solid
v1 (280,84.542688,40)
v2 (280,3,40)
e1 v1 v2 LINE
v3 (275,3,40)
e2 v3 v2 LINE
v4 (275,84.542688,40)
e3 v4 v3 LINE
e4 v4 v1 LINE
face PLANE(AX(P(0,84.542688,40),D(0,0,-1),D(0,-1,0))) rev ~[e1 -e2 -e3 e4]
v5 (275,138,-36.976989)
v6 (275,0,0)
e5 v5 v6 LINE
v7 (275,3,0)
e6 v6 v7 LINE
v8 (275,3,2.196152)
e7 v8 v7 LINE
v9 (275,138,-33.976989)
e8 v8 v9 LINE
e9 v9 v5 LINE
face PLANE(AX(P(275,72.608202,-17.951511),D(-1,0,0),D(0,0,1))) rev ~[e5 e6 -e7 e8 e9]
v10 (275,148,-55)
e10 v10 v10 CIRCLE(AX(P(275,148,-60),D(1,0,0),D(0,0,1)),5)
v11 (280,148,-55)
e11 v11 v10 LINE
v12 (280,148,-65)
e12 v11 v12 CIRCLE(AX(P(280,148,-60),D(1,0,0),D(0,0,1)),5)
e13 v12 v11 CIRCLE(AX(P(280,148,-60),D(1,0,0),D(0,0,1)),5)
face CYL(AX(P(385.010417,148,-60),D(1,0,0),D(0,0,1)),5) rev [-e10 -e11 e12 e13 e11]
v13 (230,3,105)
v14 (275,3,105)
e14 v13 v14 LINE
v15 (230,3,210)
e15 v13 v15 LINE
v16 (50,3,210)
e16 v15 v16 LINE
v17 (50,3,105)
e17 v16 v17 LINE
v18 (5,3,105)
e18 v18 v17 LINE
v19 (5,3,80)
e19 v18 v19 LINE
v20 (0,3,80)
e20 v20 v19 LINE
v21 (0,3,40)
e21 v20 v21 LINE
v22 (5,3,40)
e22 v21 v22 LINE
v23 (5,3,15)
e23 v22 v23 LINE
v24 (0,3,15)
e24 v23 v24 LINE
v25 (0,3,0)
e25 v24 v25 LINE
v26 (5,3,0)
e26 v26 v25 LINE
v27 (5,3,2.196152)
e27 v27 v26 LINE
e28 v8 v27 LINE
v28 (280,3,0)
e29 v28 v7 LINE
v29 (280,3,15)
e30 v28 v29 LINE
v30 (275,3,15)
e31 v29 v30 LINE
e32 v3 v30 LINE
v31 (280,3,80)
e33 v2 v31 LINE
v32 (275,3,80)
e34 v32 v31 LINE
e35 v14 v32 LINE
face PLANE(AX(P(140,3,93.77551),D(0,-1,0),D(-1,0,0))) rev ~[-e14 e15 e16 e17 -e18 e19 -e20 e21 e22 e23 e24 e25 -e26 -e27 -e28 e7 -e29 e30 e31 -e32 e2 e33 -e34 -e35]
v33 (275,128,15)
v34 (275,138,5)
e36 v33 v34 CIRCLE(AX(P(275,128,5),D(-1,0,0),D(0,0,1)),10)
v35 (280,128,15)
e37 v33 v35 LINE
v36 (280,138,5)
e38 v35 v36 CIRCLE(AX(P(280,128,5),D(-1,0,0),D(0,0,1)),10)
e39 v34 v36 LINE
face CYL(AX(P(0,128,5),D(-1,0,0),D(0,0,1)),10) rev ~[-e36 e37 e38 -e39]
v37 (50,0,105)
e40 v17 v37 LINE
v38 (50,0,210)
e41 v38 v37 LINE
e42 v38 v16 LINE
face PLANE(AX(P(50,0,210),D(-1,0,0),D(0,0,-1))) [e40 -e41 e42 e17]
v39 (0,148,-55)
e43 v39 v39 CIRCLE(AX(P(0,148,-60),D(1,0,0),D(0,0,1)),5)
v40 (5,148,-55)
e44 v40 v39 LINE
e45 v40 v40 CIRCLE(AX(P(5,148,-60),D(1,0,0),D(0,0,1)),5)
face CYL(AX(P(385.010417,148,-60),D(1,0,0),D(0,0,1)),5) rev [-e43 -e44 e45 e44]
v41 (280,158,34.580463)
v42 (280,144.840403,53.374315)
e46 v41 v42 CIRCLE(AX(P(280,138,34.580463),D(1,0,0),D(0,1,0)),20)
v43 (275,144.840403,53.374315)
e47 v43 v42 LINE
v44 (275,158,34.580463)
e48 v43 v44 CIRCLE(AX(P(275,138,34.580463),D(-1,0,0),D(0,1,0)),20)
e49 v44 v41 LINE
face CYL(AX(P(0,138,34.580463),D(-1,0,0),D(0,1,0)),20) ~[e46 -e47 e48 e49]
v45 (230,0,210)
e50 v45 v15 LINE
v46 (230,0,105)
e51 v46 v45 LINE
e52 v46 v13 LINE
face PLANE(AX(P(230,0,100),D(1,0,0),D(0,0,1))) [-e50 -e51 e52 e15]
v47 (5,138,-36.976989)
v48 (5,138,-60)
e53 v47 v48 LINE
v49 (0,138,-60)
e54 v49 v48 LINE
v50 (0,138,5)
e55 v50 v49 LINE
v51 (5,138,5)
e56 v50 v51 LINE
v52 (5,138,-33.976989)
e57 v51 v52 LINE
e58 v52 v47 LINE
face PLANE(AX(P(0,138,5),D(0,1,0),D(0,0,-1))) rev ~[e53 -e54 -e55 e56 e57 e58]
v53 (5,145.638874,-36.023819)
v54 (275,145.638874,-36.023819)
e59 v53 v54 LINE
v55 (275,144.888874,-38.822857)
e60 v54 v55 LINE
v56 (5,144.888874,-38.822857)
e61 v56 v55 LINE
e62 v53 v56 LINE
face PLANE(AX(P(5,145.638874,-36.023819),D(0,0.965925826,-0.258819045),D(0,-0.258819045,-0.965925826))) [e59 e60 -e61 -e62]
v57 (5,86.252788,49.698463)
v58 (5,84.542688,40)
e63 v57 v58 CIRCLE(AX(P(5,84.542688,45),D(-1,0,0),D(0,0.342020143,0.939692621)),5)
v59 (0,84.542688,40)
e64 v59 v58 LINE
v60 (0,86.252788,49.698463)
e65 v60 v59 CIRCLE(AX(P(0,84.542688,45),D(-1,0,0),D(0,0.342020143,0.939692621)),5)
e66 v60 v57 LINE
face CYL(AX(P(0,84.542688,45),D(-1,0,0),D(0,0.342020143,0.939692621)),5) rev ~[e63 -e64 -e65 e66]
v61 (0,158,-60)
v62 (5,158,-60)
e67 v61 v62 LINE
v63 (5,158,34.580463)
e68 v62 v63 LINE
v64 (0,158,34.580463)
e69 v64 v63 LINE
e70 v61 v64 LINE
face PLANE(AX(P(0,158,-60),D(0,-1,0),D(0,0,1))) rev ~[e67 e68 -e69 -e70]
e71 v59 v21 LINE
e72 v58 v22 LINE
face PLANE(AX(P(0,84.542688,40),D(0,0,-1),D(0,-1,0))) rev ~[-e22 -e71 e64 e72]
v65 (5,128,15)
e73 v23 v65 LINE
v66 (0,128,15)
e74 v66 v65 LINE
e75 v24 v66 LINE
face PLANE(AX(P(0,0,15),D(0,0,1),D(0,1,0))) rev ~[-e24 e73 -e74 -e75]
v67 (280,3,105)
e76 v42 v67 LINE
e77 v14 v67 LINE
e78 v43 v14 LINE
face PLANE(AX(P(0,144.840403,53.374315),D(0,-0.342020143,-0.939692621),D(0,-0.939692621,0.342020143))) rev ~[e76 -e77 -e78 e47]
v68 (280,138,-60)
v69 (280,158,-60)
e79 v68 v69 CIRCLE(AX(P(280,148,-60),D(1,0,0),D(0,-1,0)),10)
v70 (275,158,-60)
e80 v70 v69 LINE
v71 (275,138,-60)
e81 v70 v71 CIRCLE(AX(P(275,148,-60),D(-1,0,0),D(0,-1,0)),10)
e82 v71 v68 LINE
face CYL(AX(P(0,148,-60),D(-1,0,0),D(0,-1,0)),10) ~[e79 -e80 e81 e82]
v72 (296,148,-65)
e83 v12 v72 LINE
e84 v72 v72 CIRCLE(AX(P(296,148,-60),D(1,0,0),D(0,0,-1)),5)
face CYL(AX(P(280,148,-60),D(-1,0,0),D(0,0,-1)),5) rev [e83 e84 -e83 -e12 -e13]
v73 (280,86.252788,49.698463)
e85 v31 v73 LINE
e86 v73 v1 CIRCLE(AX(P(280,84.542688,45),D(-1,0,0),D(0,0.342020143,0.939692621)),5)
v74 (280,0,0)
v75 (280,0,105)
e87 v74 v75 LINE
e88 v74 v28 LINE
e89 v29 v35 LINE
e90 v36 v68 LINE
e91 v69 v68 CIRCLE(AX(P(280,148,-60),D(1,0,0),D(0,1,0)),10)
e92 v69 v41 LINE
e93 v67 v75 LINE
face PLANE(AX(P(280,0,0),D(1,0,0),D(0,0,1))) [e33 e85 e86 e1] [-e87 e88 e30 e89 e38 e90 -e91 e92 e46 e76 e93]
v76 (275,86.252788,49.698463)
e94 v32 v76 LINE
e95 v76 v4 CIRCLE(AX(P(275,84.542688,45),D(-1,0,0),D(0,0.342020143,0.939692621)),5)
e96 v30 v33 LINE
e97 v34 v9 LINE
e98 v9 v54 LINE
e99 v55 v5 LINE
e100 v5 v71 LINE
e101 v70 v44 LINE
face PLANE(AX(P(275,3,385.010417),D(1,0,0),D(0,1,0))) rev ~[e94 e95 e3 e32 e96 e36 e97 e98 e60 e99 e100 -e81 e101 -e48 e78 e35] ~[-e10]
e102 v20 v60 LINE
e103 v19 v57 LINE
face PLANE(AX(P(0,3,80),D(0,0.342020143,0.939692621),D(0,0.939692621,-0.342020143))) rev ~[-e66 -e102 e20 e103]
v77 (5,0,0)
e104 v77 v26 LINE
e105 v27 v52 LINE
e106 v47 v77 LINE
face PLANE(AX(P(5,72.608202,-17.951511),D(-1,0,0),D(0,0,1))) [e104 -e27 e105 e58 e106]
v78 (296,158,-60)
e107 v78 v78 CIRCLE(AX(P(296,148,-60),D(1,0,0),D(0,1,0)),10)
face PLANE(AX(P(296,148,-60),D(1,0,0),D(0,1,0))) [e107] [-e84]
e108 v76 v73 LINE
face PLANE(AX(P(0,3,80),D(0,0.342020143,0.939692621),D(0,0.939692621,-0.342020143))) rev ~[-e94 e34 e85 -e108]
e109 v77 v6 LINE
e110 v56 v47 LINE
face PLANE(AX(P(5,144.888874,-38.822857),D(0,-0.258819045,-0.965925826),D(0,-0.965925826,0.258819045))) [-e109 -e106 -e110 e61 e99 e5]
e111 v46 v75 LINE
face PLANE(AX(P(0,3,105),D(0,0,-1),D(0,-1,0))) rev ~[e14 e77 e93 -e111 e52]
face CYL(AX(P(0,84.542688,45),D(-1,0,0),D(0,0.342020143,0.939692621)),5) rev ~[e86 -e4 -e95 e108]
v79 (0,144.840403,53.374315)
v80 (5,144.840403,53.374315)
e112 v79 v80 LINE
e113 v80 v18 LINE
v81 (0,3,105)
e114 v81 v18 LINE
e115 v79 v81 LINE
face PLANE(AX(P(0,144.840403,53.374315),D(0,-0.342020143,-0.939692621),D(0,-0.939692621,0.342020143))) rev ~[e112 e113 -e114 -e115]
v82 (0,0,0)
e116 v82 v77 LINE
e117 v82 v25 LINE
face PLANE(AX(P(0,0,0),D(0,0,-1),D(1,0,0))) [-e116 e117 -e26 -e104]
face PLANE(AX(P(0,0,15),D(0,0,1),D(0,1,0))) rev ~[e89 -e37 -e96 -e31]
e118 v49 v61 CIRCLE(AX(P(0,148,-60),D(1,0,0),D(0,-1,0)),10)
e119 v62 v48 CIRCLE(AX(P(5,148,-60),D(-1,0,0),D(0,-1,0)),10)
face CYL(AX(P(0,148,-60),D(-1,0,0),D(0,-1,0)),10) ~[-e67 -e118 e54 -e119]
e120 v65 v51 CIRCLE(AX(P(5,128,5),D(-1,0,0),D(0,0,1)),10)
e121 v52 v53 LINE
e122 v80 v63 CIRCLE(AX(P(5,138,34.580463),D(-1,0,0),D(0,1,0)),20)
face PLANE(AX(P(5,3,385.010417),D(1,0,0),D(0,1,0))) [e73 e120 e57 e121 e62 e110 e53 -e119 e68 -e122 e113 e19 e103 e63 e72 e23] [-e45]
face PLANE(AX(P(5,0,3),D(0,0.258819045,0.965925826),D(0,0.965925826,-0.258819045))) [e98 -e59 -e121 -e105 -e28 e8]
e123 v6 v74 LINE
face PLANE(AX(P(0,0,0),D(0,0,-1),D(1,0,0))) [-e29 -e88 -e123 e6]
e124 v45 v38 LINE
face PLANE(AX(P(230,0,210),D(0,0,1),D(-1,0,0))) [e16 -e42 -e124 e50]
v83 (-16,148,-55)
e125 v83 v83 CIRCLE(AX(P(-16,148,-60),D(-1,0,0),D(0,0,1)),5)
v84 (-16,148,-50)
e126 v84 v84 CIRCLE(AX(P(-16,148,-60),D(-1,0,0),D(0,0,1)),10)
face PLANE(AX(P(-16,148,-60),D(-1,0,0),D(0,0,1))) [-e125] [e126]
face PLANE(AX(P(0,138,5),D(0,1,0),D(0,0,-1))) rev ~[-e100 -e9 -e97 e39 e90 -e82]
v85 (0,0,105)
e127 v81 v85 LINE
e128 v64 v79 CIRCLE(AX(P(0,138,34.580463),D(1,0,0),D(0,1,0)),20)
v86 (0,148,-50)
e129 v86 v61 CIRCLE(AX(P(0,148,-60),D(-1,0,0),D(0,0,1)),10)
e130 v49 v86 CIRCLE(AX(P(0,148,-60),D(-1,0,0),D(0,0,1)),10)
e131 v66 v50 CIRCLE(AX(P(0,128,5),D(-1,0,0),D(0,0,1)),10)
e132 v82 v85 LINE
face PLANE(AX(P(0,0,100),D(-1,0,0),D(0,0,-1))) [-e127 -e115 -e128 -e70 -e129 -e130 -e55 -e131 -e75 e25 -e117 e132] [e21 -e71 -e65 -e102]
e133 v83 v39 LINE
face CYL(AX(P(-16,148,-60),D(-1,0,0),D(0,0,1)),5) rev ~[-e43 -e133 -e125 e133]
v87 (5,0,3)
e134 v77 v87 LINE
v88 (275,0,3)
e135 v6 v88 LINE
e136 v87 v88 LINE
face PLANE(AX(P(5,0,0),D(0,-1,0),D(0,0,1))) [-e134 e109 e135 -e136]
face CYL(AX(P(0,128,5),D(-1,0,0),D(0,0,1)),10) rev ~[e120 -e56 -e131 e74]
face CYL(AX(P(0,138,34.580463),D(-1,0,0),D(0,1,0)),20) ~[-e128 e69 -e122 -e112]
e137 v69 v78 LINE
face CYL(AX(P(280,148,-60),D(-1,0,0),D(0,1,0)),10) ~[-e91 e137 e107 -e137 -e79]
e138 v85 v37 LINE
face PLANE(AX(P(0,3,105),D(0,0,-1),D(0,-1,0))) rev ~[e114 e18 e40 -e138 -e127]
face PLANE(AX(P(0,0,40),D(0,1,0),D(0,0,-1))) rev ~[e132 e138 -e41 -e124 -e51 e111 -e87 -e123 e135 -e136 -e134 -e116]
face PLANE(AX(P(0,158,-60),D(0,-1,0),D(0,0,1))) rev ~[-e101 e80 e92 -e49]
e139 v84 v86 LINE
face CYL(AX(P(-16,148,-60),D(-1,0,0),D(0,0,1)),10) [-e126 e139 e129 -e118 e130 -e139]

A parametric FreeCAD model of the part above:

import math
import FreeCAD as App
import Part
import Sketcher

V = App.Vector
Q = App.Units.Quantity


def add_polygon(sketch, points):
    """Adds a closed chain of lines whose ends are joined by coincident constraints."""
    first, n = sketch.GeometryCount, len(points)
    for a, b in zip(points, points[1:] + points[:1]):
        sketch.addGeometry(Part.LineSegment(App.Vector(*a, 0), App.Vector(*b, 0)), False)
    for i in range(n):
        sketch.addConstraint(Sketcher.Constraint("Coincident", first + i, 2, first + (i + 1) % n, 1))

doc = App.newDocument("Part")
body = doc.addObject("PartDesign::Body", "Body")

# Sketch on XZ plane
sketch1 = body.newObject("Sketcher::SketchObject", "Sketch")
sketch1.AttachmentSupport = (doc.getObject("XZ_Plane"), [""])
sketch1.MapMode = "FlatFace"
add_polygon(sketch1, [(280, 0), (0, 0), (0, 100), (50, 100), (50, 210), (230, 210), (230, 100), (280, 100)])  # lines 0-7
sketch1.addConstraint([
    Sketcher.Constraint("Horizontal", 0),
    Sketcher.Constraint("Vertical", 1),
    Sketcher.Constraint("Horizontal", 2),
    Sketcher.Constraint("Vertical", 3),
    Sketcher.Constraint("Horizontal", 4),
    Sketcher.Constraint("Vertical", 5),
    Sketcher.Constraint("Horizontal", 6),
    Sketcher.Constraint("Vertical", 7),
    Sketcher.Constraint("Coincident", 0, 2, -1, 1),
    Sketcher.Constraint("Horizontal", 2, 2, 5, 2),
    Sketcher.Constraint("Equal", 2, 6),
    Sketcher.Constraint("DistanceX", 0, 2, 0, 1, 280.0),
    Sketcher.Constraint("DistanceX", 2, 1, 2, 2, 50.0),
    Sketcher.Constraint("DistanceY", 1, 1, 1, 2, 100.0),
    Sketcher.Constraint("DistanceY", 3, 1, 3, 2, 110.0),
])
pad1 = body.newObject("PartDesign::Pad", "Pad")
pad1.Profile = sketch1
pad1.Length = 3
pad1.Reversed = True

# Sketch on YZ plane
sketch2 = body.newObject("Sketcher::SketchObject", "Sketch001")
sketch2.AttachmentSupport = (doc.getObject("YZ_Plane"), [""])
sketch2.MapMode = "FlatFace"
sketch2.addGeometry([
    Part.LineSegment(V(128, 15, 0), V(0, 15, 0)),  # 0
    Part.LineSegment(V(0, 15, 0), V(0, 40, 0)),  # 1
    Part.LineSegment(V(0, 40, 0), V(84.5, 40, 0)),  # 2
    Part.ArcOfCircle(Part.Circle(V(84.5, 45, 0), V(0, 0, 1), 5), math.radians(-90), math.radians(70)),  # 3
    Part.LineSegment(V(86.3, 49.7, 0), V(3, 80, 0)),  # 4
    Part.LineSegment(V(3, 80, 0), V(0, 80, 0)),  # 5
    Part.LineSegment(V(0, 80, 0), V(0, 105, 0)),  # 6
    Part.LineSegment(V(0, 105, 0), V(3, 105, 0)),  # 7
    Part.LineSegment(V(3, 105, 0), V(144.8, 53.4, 0)),  # 8
    Part.ArcOfCircle(Part.Circle(V(138, 34.6, 0), V(0, 0, 1), 20), math.radians(0), math.radians(70)),  # 9
    Part.LineSegment(V(158, 34.6, 0), V(158, -60, 0)),  # 10
    Part.ArcOfCircle(Part.Circle(V(148, -60, 0), V(0, 0, 1), 10), math.radians(180), math.radians(360)),  # 11
    Part.LineSegment(V(138, -60, 0), V(138, 5, 0)),  # 12
    Part.ArcOfCircle(Part.Circle(V(128, 5, 0), V(0, 0, 1), 10), math.radians(0), math.radians(90)),  # 13
], False)
sketch2.addConstraint([
    Sketcher.Constraint("Coincident", 0, 2, 1, 1),
    Sketcher.Constraint("Coincident", 1, 2, 2, 1),
    Sketcher.Constraint("Tangent", 2, 2, 3, 1),
    Sketcher.Constraint("Tangent", 3, 2, 4, 1),
    Sketcher.Constraint("Coincident", 4, 2, 5, 1),
    Sketcher.Constraint("Coincident", 5, 2, 6, 1),
    Sketcher.Constraint("Coincident", 6, 2, 7, 1),
    Sketcher.Constraint("Coincident", 7, 2, 8, 1),
    Sketcher.Constraint("Tangent", 8, 2, 9, 2),
    Sketcher.Constraint("Tangent", 9, 1, 10, 1),
    Sketcher.Constraint("Tangent", 10, 2, 11, 2),
    Sketcher.Constraint("Tangent", 11, 1, 12, 1),
    Sketcher.Constraint("Tangent", 12, 2, 13, 1),
    Sketcher.Constraint("Tangent", 13, 2, 0, 1),
    Sketcher.Constraint("Horizontal", 0),
    Sketcher.Constraint("Vertical", 1),
    Sketcher.Constraint("Horizontal", 2),
    Sketcher.Constraint("Horizontal", 5),
    Sketcher.Constraint("Vertical", 6),
    Sketcher.Constraint("Horizontal", 7),
    Sketcher.Constraint("Vertical", 10),
    Sketcher.Constraint("Vertical", 12),
    Sketcher.Constraint("Equal", 11, 13),
    Sketcher.Constraint("PointOnObject", 0, 2, -2),
    Sketcher.Constraint("PointOnObject", 5, 2, -2),
    Sketcher.Constraint("Parallel", 4, 8),
    Sketcher.Constraint("Vertical", 4, 2, 7, 2),
    Sketcher.Constraint("Vertical", 9, 3, 11, 1),
    Sketcher.Constraint("Equal", 1, 6),
    Sketcher.Constraint("Radius", 3, 5.0),
    Sketcher.Constraint("Radius", 9, 20.0),
    Sketcher.Constraint("DistanceX", 0, 2, 0, 1, 128.0),
    Sketcher.Constraint("DistanceX", 5, 2, 5, 1, 3.0),
    Sketcher.Constraint("DistanceY", 1, 1, 1, 2, 25.0),
    Sketcher.Constraint("DistanceY", 12, 1, 12, 2, 65.0),
    Sketcher.Constraint("Angle", 4, Q("160 deg")),
    Sketcher.Constraint("DistanceY", -1, 1, 3, 3, 45.0),
    Sketcher.Constraint("DistanceY", -1, 1, 4, 2, 80.0),
])
pad2 = body.newObject("PartDesign::Pad", "Pad001")
pad2.Profile = sketch2
pad2.Length = 280

# Sketch on XY plane
sketch3 = body.newObject("Sketcher::SketchObject", "Sketch002")
sketch3.AttachmentSupport = (doc.getObject("XY_Plane"), [""])
sketch3.MapMode = "FlatFace"
add_polygon(sketch3, [(275, 203), (275, 3), (5, 3), (5, 203)])  # lines 0-3
sketch3.addConstraint([
    Sketcher.Constraint("Vertical", 0),
    Sketcher.Constraint("Horizontal", 1),
    Sketcher.Constraint("Vertical", 2),
    Sketcher.Constraint("Horizontal", 3),
    Sketcher.Constraint("DistanceX", 1, 2, 1, 1, 270.0),
    Sketcher.Constraint("DistanceY", 0, 2, 0, 1, 200.0),
    Sketcher.Constraint("DistanceX", -1, 1, 0, 2, 275.0),
    Sketcher.Constraint("DistanceY", -1, 1, 0, 2, 3.0),
])
pocket1 = body.newObject("PartDesign::Pocket", "Pocket")
pocket1.Profile = sketch3
pocket1.Type = "ThroughAll"
pocket1.Midplane = True

# Sketch on YZ plane
sketch4 = body.newObject("Sketcher::SketchObject", "Sketch003")
sketch4.AttachmentSupport = (doc.getObject("YZ_Plane"), [""])
sketch4.MapMode = "FlatFace"
sketch4.addGeometry(Part.Circle(V(148, -60, 0), V(0, 0, 1), 5), False)
sketch4.addConstraint([
    Sketcher.Constraint("Diameter", 0, 10.0),
    Sketcher.Constraint("DistanceX", -1, 1, 0, 3, 148.0),
    Sketcher.Constraint("DistanceY", 0, 3, -1, 1, 60.0),
])
pocket2 = body.newObject("PartDesign::Pocket", "Pocket001")
pocket2.Profile = sketch4
pocket2.Type = "ThroughAll"
pocket2.Midplane = True

# Sketch on YZ plane
sketch5 = body.newObject("Sketcher::SketchObject", "Sketch004")
sketch5.AttachmentSupport = (doc.getObject("YZ_Plane"), [""])
sketch5.MapMode = "FlatFace"
sketch5.AttachmentOffset = App.Placement(V(0, 0, -16), App.Rotation())
sketch5.addGeometry([
    Part.Circle(V(148, -60, 0), V(0, 0, 1), 10),
    Part.Circle(V(148, -60, 0), V(0, 0, 1), 5),
], False)
sketch5.addConstraint([
    Sketcher.Constraint("Coincident", 1, 3, 0, 3),
    Sketcher.Constraint("Diameter", 0, 20.0),
    Sketcher.Constraint("Diameter", 1, 10.0),
    Sketcher.Constraint("DistanceX", -1, 1, 0, 3, 148.0),
    Sketcher.Constraint("DistanceY", 0, 3, -1, 1, 60.0),
])
pad3 = body.newObject("PartDesign::Pad", "Pad002")
pad3.Profile = sketch5
pad3.Length = 16

# Sketch on YZ plane
sketch6 = body.newObject("Sketcher::SketchObject", "Sketch005")
sketch6.AttachmentSupport = (doc.getObject("YZ_Plane"), [""])
sketch6.MapMode = "FlatFace"
sketch6.AttachmentOffset = App.Placement(V(0, 0, 280), App.Rotation())
sketch6.addGeometry([
    Part.Circle(V(148, -60, 0), V(0, 0, 1), 10),
    Part.Circle(V(148, -60, 0), V(0, 0, 1), 5),
], False)
sketch6.addConstraint([
    Sketcher.Constraint("Coincident", 1, 3, 0, 3),
    Sketcher.Constraint("Diameter", 0, 20.0),
    Sketcher.Constraint("Diameter", 1, 10.0),
    Sketcher.Constraint("DistanceX", -1, 1, 0, 3, 148.0),
    Sketcher.Constraint("DistanceY", 0, 3, -1, 1, 60.0),
])
pad4 = body.newObject("PartDesign::Pad", "Pad003")
pad4.Profile = sketch6
pad4.Length = 16

# Sketch on YZ plane
sketch7 = body.newObject("Sketcher::SketchObject", "Sketch006")
sketch7.AttachmentSupport = (doc.getObject("YZ_Plane"), [""])
sketch7.MapMode = "FlatFace"
sketch7.AttachmentOffset = App.Placement(V(0, 0, 5), App.Rotation())
add_polygon(sketch7, [(0, 3), (0, 0), (144.9, -38.8), (145.6, -36)])  # lines 0-3
sketch7.addConstraint([
    Sketcher.Constraint("Vertical", 0),
    Sketcher.Constraint("Coincident", 0, 2, -1, 1),
    Sketcher.Constraint("Perpendicular", 1, 2),
    Sketcher.Constraint("Perpendicular", 2, 3),
    Sketcher.Constraint("DistanceY", 0, 2, 0, 1, 3.0),
    Sketcher.Constraint("Angle", 1, Q("-15 deg")),
    Sketcher.Constraint("Distance", 1, 150.0),
])
pad5 = body.newObject("PartDesign::Pad", "Pad004")
pad5.Profile = sketch7
pad5.Length = 270

doc.recompute()
